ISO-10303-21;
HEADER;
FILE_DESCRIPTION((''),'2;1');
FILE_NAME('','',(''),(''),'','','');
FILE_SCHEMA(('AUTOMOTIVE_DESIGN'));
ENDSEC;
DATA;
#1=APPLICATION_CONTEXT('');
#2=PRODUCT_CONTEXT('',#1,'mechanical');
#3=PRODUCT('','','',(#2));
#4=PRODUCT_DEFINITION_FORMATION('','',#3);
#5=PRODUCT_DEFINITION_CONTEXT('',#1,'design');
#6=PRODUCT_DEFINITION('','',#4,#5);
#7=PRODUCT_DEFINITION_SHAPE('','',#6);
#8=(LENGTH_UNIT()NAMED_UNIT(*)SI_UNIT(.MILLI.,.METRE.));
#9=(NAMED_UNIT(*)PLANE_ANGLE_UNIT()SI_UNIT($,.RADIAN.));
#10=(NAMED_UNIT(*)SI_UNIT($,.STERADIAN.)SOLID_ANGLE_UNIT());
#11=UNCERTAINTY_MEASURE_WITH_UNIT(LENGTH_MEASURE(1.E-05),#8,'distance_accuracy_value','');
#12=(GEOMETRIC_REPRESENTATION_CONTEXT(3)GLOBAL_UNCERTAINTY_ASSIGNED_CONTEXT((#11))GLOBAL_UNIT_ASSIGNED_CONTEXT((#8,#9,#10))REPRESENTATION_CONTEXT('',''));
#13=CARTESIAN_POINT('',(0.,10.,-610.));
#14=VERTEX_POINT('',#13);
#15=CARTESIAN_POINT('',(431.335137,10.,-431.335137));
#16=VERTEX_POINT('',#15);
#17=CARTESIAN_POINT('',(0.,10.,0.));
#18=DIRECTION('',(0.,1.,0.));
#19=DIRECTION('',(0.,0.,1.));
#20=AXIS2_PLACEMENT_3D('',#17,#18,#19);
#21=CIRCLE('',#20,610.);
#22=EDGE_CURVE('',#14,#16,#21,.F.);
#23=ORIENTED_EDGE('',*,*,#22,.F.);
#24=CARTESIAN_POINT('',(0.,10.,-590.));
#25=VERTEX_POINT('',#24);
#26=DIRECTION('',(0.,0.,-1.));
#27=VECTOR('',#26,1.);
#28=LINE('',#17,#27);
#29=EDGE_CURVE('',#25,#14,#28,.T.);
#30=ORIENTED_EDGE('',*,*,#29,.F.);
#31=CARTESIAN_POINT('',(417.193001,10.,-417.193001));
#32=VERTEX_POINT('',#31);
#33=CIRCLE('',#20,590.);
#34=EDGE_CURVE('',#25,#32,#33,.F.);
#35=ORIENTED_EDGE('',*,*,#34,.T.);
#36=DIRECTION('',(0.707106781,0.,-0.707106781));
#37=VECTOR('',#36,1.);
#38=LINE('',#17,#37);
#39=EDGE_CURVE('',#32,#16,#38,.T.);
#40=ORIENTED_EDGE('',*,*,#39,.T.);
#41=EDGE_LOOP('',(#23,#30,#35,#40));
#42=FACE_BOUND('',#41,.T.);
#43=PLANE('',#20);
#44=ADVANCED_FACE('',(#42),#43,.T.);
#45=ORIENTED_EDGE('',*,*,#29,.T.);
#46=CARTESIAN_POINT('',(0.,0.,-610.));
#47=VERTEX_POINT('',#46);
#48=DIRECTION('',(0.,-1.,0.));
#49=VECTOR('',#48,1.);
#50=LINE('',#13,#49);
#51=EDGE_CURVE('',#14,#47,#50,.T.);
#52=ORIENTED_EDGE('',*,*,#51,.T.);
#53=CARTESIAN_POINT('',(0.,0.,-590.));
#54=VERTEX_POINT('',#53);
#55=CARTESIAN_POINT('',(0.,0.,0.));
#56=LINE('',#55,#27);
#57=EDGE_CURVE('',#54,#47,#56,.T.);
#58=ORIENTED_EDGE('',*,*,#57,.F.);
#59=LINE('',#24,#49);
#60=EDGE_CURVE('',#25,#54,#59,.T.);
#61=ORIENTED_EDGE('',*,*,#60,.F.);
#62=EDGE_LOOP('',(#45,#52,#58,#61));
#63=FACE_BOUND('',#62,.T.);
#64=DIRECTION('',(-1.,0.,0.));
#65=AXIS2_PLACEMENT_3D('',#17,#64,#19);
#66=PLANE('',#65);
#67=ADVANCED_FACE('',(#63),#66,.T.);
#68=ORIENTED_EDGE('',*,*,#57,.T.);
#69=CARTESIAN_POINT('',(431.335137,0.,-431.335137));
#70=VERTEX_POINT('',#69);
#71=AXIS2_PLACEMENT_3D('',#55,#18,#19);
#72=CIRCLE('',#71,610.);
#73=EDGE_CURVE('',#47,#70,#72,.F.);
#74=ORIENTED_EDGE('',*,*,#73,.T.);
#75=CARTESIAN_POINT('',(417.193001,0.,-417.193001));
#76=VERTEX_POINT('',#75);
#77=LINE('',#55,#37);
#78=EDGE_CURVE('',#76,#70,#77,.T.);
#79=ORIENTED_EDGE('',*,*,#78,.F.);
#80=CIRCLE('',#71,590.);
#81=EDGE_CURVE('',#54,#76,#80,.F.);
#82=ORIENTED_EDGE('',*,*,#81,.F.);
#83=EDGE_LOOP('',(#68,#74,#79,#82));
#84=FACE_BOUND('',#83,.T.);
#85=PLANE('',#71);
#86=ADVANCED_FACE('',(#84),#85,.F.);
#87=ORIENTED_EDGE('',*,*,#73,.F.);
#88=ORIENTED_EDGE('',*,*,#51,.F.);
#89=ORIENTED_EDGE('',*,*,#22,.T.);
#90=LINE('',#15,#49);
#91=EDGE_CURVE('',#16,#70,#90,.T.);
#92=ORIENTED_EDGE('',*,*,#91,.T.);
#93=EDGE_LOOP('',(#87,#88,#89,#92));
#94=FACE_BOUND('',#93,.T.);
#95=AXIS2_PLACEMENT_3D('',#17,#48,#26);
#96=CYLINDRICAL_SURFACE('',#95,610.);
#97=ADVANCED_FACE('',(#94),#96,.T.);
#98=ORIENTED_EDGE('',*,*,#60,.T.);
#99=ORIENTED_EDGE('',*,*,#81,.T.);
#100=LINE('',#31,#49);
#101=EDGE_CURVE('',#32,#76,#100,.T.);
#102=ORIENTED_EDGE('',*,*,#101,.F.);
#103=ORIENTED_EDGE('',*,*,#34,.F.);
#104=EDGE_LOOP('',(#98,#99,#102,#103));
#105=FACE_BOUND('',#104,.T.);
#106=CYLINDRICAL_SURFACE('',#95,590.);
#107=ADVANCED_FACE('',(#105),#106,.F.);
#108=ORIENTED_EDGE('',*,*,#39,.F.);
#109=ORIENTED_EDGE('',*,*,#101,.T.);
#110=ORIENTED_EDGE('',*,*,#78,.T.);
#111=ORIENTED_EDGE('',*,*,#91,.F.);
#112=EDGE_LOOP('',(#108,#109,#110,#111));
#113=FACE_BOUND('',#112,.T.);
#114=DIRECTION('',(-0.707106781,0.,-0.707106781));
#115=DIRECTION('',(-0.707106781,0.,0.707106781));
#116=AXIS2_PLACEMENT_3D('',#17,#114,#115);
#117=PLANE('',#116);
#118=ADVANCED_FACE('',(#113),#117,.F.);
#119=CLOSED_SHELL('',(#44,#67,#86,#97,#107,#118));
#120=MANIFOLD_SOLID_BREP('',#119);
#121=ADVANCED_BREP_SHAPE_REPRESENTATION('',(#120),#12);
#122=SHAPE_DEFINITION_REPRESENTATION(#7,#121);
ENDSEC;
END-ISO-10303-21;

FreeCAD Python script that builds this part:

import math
import FreeCAD as App
import Part
import Sketcher

V = App.Vector
Q = App.Units.Quantity

doc = App.newDocument("Part")
params = doc.addObject("Spreadsheet::Sheet", "Params")
for row, (alias, value) in enumerate([
    ("sketch1_radius", "610 mm"),
    ("sketch1_radius2", "590 mm"),
    ("pad1_length", "10 mm"),
], start=1):
    params.set(f"A{row}", alias)
    params.set(f"B{row}", "=" + value)
    params.setAlias(f"B{row}", alias)

body = doc.addObject("PartDesign::Body", "Body")

sketch1 = body.newObject("Sketcher::SketchObject", "Sketch")
sketch1.AttachmentSupport = (doc.getObject("XZ_Plane"), [""])
sketch1.MapMode = "FlatFace"
sketch1.addGeometry(Part.ArcOfCircle(Part.Circle(V(0, 0, 0), V(0, 0, 1), 610), math.radians(-90), math.radians(-45)), False)
sketch1.addGeometry(Part.LineSegment(V(0, -610, 0), V(0, -590, 0)), False)
sketch1.addGeometry(Part.ArcOfCircle(Part.Circle(V(0, 0, 0), V(0, 0, 1), 590), math.radians(-90), math.radians(-45)), False)
sketch1.addGeometry(Part.LineSegment(V(417, -417, 0), V(431, -431, 0)), False)
sketch1.addConstraint(Sketcher.Constraint("Coincident", 0, 1, 1, 1))
sketch1.addConstraint(Sketcher.Constraint("Coincident", 1, 2, 2, 1))
sketch1.addConstraint(Sketcher.Constraint("Coincident", 2, 2, 3, 1))
sketch1.addConstraint(Sketcher.Constraint("Coincident", 3, 2, 0, 2))
sketch1.addConstraint(Sketcher.Constraint("Vertical", 1))
sketch1.addConstraint(Sketcher.Constraint("Coincident", 0, 3, -1, 1))
sketch1.addConstraint(Sketcher.Constraint("Coincident", 2, 3, -1, 1))
sketch1.addConstraint(Sketcher.Constraint("PointOnObject", 1, 2, -2))
sketch1.addConstraint(Sketcher.Constraint("Radius", 0, Q("610 mm")))
sketch1.addConstraint(Sketcher.Constraint("Radius", 2, Q("590 mm")))
sketch1.addConstraint(Sketcher.Constraint("Angle", 3, Q("-45 deg")))
sketch1.addConstraint(Sketcher.Constraint("DistanceX", -1, 1, 3, 2, Q("431.335137 mm")))
sketch1.setExpression("Constraints[8]", "Params.sketch1_radius")
sketch1.setExpression("Constraints[9]", "Params.sketch1_radius2")
pad1 = body.newObject("PartDesign::Pad", "Pad")
pad1.Profile = sketch1
pad1.setExpression("Length", "Params.pad1_length")
pad1.Reversed = True

doc.recompute()
